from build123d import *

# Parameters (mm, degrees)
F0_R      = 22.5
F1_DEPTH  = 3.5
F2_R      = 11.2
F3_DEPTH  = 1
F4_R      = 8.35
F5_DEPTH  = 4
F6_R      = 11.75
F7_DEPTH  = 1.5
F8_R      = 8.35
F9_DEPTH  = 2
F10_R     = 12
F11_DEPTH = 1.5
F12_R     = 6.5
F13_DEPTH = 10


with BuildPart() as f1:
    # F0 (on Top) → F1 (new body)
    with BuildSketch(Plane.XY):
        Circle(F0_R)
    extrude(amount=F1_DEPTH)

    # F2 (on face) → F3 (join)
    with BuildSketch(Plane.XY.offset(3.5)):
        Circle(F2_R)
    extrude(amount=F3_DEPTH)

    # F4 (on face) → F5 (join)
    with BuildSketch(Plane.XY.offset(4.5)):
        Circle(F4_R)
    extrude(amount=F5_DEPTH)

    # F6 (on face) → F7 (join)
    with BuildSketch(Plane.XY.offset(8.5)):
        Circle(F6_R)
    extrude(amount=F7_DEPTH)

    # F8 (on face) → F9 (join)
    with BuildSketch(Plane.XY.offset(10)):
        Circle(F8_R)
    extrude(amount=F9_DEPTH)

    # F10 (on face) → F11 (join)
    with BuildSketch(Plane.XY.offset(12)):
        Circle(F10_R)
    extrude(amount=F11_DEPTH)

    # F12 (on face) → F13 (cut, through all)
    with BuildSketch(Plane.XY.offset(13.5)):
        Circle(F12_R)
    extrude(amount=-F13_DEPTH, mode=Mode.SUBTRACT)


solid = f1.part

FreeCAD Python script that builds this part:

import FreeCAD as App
import Part
import Sketcher
Q = App.Units.Quantity

doc = App.newDocument("Part")
body = doc.addObject("PartDesign::Body", "Body")

# Sketch on XY plane
sketch1 = doc.addObject("Sketcher::SketchObject", "Sketch")
body.addObject(sketch1)
sketch1.AttachmentSupport = (doc.XY_Plane, [""])
sketch1.MapMode = "FlatFace"
sketch1.addGeometry(Part.Circle(App.Vector(0, 0, 0), App.Vector(0, 0, 1), 22), False)
sketch1.addConstraint([
    Sketcher.Constraint("Coincident", 0, 3, -1, 1),
    Sketcher.Constraint("Diameter", 0, Q("45 mm")),
])
pad1 = doc.addObject("PartDesign::Pad", "Pad")
body.addObject(pad1)
pad1.Profile = sketch1
pad1.Length = 3.5

# Sketch on XY plane
sketch2 = doc.addObject("Sketcher::SketchObject", "Sketch001")
body.addObject(sketch2)
sketch2.AttachmentSupport = (doc.XY_Plane, [""])
sketch2.MapMode = "FlatFace"
sketch2.AttachmentOffset = App.Placement(App.Vector(0, 0, 3.5), App.Rotation())
sketch2.addGeometry(Part.Circle(App.Vector(0, 0, 0), App.Vector(0, 0, 1), 11), False)
sketch2.addConstraint([
    Sketcher.Constraint("Coincident", 0, 3, -1, 1),
    Sketcher.Constraint("Diameter", 0, Q("22.4 mm")),
])
pad2 = doc.addObject("PartDesign::Pad", "Pad001")
body.addObject(pad2)
pad2.Profile = sketch2
pad2.Length = 1

# Sketch on XY plane
sketch3 = doc.addObject("Sketcher::SketchObject", "Sketch002")
body.addObject(sketch3)
sketch3.AttachmentSupport = (doc.XY_Plane, [""])
sketch3.MapMode = "FlatFace"
sketch3.AttachmentOffset = App.Placement(App.Vector(0, 0, 4.5), App.Rotation())
sketch3.addGeometry(Part.Circle(App.Vector(0, 0, 0), App.Vector(0, 0, 1), 8), False)
sketch3.addConstraint([
    Sketcher.Constraint("Coincident", 0, 3, -1, 1),
    Sketcher.Constraint("Diameter", 0, Q("16.7 mm")),
])
pad3 = doc.addObject("PartDesign::Pad", "Pad002")
body.addObject(pad3)
pad3.Profile = sketch3
pad3.Length = 4

# Sketch on XY plane
sketch4 = doc.addObject("Sketcher::SketchObject", "Sketch003")
body.addObject(sketch4)
sketch4.AttachmentSupport = (doc.XY_Plane, [""])
sketch4.MapMode = "FlatFace"
sketch4.AttachmentOffset = App.Placement(App.Vector(0, 0, 8.5), App.Rotation())
sketch4.addGeometry(Part.Circle(App.Vector(0, 0, 0), App.Vector(0, 0, 1), 12), False)
sketch4.addConstraint([
    Sketcher.Constraint("Coincident", 0, 3, -1, 1),
    Sketcher.Constraint("Diameter", 0, Q("23.5 mm")),
])
pad4 = doc.addObject("PartDesign::Pad", "Pad003")
body.addObject(pad4)
pad4.Profile = sketch4
pad4.Length = 1.5

# Sketch on XY plane
sketch5 = doc.addObject("Sketcher::SketchObject", "Sketch004")
body.addObject(sketch5)
sketch5.AttachmentSupport = (doc.XY_Plane, [""])
sketch5.MapMode = "FlatFace"
sketch5.AttachmentOffset = App.Placement(App.Vector(0, 0, 10), App.Rotation())
sketch5.addGeometry(Part.Circle(App.Vector(0, 0, 0), App.Vector(0, 0, 1), 8), False)
sketch5.addConstraint([
    Sketcher.Constraint("Coincident", 0, 3, -1, 1),
    Sketcher.Constraint("Diameter", 0, Q("16.7 mm")),
])
pad5 = doc.addObject("PartDesign::Pad", "Pad004")
body.addObject(pad5)
pad5.Profile = sketch5
pad5.Length = 2

# Sketch on XY plane
sketch6 = doc.addObject("Sketcher::SketchObject", "Sketch005")
body.addObject(sketch6)
sketch6.AttachmentSupport = (doc.XY_Plane, [""])
sketch6.MapMode = "FlatFace"
sketch6.AttachmentOffset = App.Placement(App.Vector(0, 0, 12), App.Rotation())
sketch6.addGeometry(Part.Circle(App.Vector(0, 0, 0), App.Vector(0, 0, 1), 12), False)
sketch6.addConstraint([
    Sketcher.Constraint("Coincident", 0, 3, -1, 1),
    Sketcher.Constraint("Diameter", 0, Q("24 mm")),
])
pad6 = doc.addObject("PartDesign::Pad", "Pad005")
body.addObject(pad6)
pad6.Profile = sketch6
pad6.Length = 1.5

# Sketch on XY plane
sketch7 = doc.addObject("Sketcher::SketchObject", "Sketch006")
body.addObject(sketch7)
sketch7.AttachmentSupport = (doc.XY_Plane, [""])
sketch7.MapMode = "FlatFace"
sketch7.AttachmentOffset = App.Placement(App.Vector(0, 0, 13.5), App.Rotation())
sketch7.addGeometry(Part.Circle(App.Vector(0, 0, 0), App.Vector(0, 0, 1), 6), False)
sketch7.addConstraint([
    Sketcher.Constraint("Coincident", 0, 3, -1, 1),
    Sketcher.Constraint("Diameter", 0, Q("13 mm")),
])
pocket1 = doc.addObject("PartDesign::Pocket", "Pocket")
body.addObject(pocket1)
pocket1.Profile = sketch7
pocket1.Length = 10

doc.recompute()
